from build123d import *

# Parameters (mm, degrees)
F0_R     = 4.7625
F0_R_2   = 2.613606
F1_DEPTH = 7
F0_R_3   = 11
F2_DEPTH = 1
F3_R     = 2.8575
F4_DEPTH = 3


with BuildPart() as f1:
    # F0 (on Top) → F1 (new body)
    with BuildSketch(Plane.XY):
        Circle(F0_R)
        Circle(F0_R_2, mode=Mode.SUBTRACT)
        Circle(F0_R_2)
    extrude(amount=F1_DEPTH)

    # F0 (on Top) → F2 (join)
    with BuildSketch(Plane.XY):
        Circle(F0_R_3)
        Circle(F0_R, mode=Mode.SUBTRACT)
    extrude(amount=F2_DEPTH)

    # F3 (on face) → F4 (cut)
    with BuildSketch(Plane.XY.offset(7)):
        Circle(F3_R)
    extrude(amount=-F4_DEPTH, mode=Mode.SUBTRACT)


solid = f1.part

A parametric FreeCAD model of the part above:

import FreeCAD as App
import Part
import Sketcher
from FreeCAD import Vector
Q = App.Units.Quantity

doc = App.newDocument("Part")
body = doc.addObject("PartDesign::Body", "Body")

# Sketch on XY plane
sketch1 = body.newObject("Sketcher::SketchObject", "Sketch")
sketch1.AttachmentSupport = (doc.getObject("XY_Plane"), [""])
sketch1.MapMode = "FlatFace"
sketch1.addGeometry(Part.Circle(Vector(0, 0, 0), Vector(0, 0, 1), 4.7625), False)
sketch1.addConstraint([
    Sketcher.Constraint("Coincident", 0, 3, -1, 1),
    Sketcher.Constraint("Diameter", 0, Q("9.525 mm")),
])
pad1 = body.newObject("PartDesign::Pad", "Pad")
pad1.Profile = sketch1
pad1.Length = 7

# Sketch on XY plane
sketch2 = body.newObject("Sketcher::SketchObject", "Sketch001")
sketch2.AttachmentSupport = (doc.getObject("XY_Plane"), [""])
sketch2.MapMode = "FlatFace"
sketch2.addGeometry([
    Part.Circle(Vector(0, 0, 0), Vector(0, 0, 1), 11),
    Part.Circle(Vector(0, 0, 0), Vector(0, 0, 1), 4.7625),
], False)
sketch2.addConstraint([
    Sketcher.Constraint("Coincident", 0, 3, -1, 1),
    Sketcher.Constraint("Coincident", 1, 3, -1, 1),
    Sketcher.Constraint("Diameter", 0, Q("22 mm")),
    Sketcher.Constraint("Diameter", 1, Q("9.525 mm")),
])
pad2 = body.newObject("PartDesign::Pad", "Pad001")
pad2.Profile = sketch2
pad2.Length = 1

# Sketch on XY plane
sketch3 = body.newObject("Sketcher::SketchObject", "Sketch002")
sketch3.AttachmentSupport = (doc.getObject("XY_Plane"), [""])
sketch3.MapMode = "FlatFace"
sketch3.AttachmentOffset = App.Placement(Vector(0, 0, 7), App.Rotation())
sketch3.addGeometry(Part.Circle(Vector(0, 0, 0), Vector(0, 0, 1), 2.8575), False)
sketch3.addConstraint([
    Sketcher.Constraint("Coincident", 0, 3, -1, 1),
    Sketcher.Constraint("Diameter", 0, Q("5.715 mm")),
])
pocket1 = body.newObject("PartDesign::Pocket", "Pocket")
pocket1.Profile = sketch3
pocket1.Length = 3

doc.recompute()
